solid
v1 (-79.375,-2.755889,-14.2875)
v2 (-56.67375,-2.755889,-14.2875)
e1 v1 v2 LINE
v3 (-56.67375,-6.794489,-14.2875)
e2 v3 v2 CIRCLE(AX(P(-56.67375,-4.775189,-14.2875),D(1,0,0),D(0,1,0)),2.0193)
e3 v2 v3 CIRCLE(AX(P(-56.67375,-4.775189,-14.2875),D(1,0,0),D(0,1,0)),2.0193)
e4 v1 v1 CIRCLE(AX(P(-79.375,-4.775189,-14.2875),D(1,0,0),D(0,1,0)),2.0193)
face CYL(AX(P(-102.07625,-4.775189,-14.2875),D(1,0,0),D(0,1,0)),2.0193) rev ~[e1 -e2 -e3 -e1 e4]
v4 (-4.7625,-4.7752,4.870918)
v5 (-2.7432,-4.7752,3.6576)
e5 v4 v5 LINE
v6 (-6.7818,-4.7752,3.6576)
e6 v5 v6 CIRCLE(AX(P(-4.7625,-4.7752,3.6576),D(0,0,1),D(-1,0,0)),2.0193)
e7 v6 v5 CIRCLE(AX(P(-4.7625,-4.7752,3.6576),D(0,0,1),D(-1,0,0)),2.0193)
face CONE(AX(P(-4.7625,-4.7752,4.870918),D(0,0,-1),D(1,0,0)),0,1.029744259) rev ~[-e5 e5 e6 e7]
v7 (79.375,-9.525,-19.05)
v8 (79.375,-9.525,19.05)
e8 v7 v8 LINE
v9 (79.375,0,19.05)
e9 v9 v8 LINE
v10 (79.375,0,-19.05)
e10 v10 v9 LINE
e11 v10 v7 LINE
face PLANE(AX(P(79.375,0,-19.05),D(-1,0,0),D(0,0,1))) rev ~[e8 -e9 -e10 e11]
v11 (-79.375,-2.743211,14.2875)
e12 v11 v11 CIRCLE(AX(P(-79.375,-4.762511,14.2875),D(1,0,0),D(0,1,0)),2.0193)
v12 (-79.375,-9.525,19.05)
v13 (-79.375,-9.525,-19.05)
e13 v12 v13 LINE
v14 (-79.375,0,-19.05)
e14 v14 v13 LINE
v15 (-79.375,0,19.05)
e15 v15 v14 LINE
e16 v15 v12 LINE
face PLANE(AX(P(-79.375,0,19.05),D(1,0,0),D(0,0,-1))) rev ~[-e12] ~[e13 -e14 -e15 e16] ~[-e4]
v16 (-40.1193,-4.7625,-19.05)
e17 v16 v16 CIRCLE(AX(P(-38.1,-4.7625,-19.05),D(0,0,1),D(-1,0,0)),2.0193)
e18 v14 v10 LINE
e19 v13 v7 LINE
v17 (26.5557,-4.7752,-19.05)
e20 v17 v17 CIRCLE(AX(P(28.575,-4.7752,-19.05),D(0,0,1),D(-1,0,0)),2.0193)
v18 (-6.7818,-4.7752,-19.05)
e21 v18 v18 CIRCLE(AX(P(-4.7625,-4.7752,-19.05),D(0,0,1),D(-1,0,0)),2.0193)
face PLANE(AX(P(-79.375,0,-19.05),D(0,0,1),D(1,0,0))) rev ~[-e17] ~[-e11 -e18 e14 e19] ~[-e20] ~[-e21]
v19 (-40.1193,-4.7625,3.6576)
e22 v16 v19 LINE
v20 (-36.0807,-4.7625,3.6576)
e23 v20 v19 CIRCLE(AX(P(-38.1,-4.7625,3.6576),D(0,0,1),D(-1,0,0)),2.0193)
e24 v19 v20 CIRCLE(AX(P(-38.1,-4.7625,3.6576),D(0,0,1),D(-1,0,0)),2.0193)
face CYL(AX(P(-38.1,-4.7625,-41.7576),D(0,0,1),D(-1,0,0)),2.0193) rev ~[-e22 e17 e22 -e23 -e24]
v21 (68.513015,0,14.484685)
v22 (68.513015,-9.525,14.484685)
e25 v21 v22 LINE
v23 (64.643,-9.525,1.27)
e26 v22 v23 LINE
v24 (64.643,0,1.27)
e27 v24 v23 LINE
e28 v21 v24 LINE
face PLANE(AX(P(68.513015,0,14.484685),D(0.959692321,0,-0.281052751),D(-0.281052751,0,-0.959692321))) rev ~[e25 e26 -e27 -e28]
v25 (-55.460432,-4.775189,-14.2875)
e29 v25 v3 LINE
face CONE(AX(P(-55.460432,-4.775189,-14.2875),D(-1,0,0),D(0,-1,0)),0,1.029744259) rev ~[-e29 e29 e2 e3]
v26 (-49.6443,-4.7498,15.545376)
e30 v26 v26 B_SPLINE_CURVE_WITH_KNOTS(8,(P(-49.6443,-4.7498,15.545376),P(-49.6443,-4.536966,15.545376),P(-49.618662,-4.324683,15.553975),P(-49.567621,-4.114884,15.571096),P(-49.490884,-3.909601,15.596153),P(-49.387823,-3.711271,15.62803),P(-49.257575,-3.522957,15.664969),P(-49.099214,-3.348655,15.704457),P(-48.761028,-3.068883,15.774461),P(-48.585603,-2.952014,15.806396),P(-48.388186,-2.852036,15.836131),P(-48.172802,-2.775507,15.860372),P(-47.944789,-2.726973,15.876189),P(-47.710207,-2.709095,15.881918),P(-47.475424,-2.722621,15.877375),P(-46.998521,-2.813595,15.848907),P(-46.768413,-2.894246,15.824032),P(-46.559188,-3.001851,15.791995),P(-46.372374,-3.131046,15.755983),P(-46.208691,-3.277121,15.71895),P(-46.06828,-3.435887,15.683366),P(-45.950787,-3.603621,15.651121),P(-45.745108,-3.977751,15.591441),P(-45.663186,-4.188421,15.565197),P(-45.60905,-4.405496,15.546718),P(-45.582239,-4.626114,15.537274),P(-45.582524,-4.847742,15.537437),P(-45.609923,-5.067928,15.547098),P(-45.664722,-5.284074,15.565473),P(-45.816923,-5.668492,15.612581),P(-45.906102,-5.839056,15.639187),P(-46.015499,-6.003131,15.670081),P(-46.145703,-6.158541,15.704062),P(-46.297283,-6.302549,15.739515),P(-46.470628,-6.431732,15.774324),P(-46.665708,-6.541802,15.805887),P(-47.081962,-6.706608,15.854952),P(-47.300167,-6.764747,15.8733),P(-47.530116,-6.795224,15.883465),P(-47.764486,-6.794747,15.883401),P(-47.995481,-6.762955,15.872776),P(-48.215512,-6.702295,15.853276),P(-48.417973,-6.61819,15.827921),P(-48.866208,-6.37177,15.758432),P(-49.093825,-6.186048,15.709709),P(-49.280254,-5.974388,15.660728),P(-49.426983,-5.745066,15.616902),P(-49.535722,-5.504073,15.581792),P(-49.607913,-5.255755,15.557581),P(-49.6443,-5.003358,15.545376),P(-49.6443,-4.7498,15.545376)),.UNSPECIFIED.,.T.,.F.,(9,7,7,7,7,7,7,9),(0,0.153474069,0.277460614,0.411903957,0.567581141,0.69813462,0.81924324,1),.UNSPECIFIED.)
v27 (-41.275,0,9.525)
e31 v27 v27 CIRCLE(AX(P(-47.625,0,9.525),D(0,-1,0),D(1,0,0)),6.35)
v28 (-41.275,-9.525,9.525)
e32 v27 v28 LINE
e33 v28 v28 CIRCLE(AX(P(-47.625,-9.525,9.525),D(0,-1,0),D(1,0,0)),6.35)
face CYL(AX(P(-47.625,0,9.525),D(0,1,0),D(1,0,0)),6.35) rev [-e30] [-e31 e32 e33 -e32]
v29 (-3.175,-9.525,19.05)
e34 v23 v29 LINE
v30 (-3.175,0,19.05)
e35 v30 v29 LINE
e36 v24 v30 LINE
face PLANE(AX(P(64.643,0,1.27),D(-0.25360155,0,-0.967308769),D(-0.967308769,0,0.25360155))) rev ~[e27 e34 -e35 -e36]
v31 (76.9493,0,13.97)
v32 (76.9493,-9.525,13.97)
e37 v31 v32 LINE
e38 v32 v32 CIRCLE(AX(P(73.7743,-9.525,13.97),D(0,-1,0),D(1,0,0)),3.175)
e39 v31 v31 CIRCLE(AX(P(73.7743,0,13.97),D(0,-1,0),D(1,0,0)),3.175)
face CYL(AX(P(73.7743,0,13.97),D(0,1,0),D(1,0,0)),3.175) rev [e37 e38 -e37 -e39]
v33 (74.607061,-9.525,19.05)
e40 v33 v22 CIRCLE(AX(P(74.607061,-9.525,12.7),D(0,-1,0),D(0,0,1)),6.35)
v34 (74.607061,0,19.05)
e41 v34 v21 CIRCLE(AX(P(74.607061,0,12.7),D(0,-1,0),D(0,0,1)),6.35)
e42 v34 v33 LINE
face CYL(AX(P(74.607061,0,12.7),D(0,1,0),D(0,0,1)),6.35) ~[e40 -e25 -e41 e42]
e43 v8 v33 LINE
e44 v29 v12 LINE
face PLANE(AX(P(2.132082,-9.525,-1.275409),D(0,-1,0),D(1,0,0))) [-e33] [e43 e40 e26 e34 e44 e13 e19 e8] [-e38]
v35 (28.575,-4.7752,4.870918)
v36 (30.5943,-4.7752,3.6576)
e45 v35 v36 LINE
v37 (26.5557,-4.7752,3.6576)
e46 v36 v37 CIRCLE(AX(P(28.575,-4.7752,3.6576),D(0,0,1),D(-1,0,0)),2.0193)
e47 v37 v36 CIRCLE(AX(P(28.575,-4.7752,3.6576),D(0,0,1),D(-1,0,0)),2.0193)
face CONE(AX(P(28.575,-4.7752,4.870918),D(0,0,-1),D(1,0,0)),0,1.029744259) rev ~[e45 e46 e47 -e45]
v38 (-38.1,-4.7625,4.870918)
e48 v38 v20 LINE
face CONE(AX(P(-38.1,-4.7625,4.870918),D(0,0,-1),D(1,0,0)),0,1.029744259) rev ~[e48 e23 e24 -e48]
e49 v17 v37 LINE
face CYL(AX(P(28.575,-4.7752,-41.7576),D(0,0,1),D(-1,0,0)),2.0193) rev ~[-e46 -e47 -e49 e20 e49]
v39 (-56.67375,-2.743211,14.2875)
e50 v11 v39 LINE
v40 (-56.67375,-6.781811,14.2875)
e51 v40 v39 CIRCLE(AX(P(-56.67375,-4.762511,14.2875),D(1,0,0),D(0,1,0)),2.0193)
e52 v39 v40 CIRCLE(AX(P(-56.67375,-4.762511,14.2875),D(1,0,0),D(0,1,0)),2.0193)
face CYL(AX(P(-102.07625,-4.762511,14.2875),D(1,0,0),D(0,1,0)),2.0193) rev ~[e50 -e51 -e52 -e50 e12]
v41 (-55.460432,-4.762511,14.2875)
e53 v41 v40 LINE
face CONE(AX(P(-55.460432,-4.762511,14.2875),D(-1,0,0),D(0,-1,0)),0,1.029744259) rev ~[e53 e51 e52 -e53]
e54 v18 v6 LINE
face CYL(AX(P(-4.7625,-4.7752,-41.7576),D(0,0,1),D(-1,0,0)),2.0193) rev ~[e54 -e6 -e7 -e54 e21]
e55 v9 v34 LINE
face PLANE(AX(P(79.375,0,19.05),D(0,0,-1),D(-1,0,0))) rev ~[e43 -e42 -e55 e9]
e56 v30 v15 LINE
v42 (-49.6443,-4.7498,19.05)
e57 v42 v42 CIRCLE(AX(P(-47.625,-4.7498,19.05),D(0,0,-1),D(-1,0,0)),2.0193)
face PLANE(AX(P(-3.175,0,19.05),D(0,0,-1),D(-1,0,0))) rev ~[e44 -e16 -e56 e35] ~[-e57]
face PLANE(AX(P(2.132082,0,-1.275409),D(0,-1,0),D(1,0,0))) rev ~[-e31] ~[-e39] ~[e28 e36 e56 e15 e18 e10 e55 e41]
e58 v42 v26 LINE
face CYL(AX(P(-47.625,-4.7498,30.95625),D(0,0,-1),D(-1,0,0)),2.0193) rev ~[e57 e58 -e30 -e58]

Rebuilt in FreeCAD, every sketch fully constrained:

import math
import FreeCAD as App
import Part
import Sketcher
from FreeCAD import Vector
Q = App.Units.Quantity

doc = App.newDocument("Part")
params = doc.addObject("Spreadsheet::Sheet", "Params")
for row, (alias, value) in enumerate([
    ("sketch1_diameter", "0.5 in"),
    ("sketch1_diameter2", "0.25 in"),
    ("sketch1_width", "3 in"),
    ("sketch1_height", "1.5 in"),
    ("sketch1_width2", "6.25 in"),
    ("pad1_length", "0.375 in"),
    ("sketch2_diameter", "0.159 in"),
    ("hole_diameter", "0.159 in"),
    ("hole_depth", "22.70125 mm"),
    ("sketch3_diameter", "0.159 in"),
    ("hole2_diameter", "0.159 in"),
    ("hole2_depth", "0.46875 in"),
    ("sketch4_diameter", "0.159 in"),
    ("hole3_diameter", "0.159 in"),
    ("hole3_depth", "0.894 in"),
], start=1):
    params.set(f"A{row}", alias)
    params.set(f"B{row}", "=" + value)
    params.setAlias(f"B{row}", alias)

body = doc.addObject("PartDesign::Body", "Body")

# Sketch on XZ plane
sketch1 = body.newObject("Sketcher::SketchObject", "Sketch")
sketch1.AttachmentSupport = (doc.getObject("XZ_Plane"), [""])
sketch1.MapMode = "FlatFace"
sketch1.addGeometry([
    Part.LineSegment(Vector(-3.2, 19.1, 0), Vector(-79.4, 19.1, 0)),  # 0
    Part.LineSegment(Vector(-79.4, 19.1, 0), Vector(-79.4, -19.1, 0)),  # 1
    Part.LineSegment(Vector(-79.4, -19.1, 0), Vector(79.4, -19.1, 0)),  # 2
    Part.LineSegment(Vector(79.4, -19.1, 0), Vector(79.4, 19.1, 0)),  # 3
    Part.LineSegment(Vector(79.4, 19.1, 0), Vector(74.6, 19.1, 0)),  # 4
    Part.ArcOfCircle(Part.Circle(Vector(74.6, 12.7, 0), Vector(0, 0, 1), 6.3), math.radians(90), math.radians(164)),  # 5
    Part.LineSegment(Vector(68.5, 14.5, 0), Vector(64.6, 1.3, 0)),  # 6
    Part.LineSegment(Vector(64.6, 1.3, 0), Vector(-3.2, 19.1, 0)),  # 7
    Part.Circle(Vector(-47.6, 9.5, 0), Vector(0, 0, 1), 6.3),  # 8
    Part.Circle(Vector(73.8, 14, 0), Vector(0, 0, 1), 3.2),  # 9
], False)
sketch1.addConstraint([
    Sketcher.Constraint("Coincident", 0, 2, 1, 1),
    Sketcher.Constraint("Coincident", 1, 2, 2, 1),
    Sketcher.Constraint("Coincident", 2, 2, 3, 1),
    Sketcher.Constraint("Coincident", 3, 2, 4, 1),
    Sketcher.Constraint("Tangent", 4, 2, 5, 1),
    Sketcher.Constraint("Tangent", 5, 2, 6, 1),
    Sketcher.Constraint("Coincident", 6, 2, 7, 1),
    Sketcher.Constraint("Coincident", 7, 2, 0, 1),
    Sketcher.Constraint("Horizontal", 0),
    Sketcher.Constraint("Vertical", 1),
    Sketcher.Constraint("Horizontal", 2),
    Sketcher.Constraint("Vertical", 3),
    Sketcher.Constraint("Horizontal", 4),
    Sketcher.Constraint("Equal", 5, 8),
    Sketcher.Constraint("Symmetric", 0, 2, 2, 2, -1, 1),
    Sketcher.Constraint("Horizontal", 0, 2, 3, 2),
    Sketcher.Constraint("Diameter", 8, Q("0.5 in")),
    Sketcher.Constraint("Diameter", 9, Q("0.25 in")),
    Sketcher.Constraint("DistanceX", 0, 2, 0, 1, Q("3 in")),
    Sketcher.Constraint("DistanceY", 1, 2, 1, 1, Q("1.5 in")),
    Sketcher.Constraint("DistanceX", 8, 3, 2, 2, Q("5 in")),
    Sketcher.Constraint("DistanceX", 2, 1, 2, 2, Q("6.25 in")),
    Sketcher.Constraint("DistanceY", 9, 3, 0, 2, Q("0.2 in")),
    Sketcher.Constraint("DistanceY", 6, 2, 9, 3, Q("0.5 in")),
    Sketcher.Constraint("DistanceX", 6, 2, 3, 2, Q("0.58 in")),
    Sketcher.Constraint("DistanceY", -1, 1, 8, 3, Q("0.375 in")),
    Sketcher.Constraint("DistanceX", -1, 1, 9, 3, Q("2.9045 in")),
    Sketcher.Constraint("DistanceX", 4, 2, 4, 1, 4.767939),
])
sketch1.setExpression("Constraints[16]", "Params.sketch1_diameter")
sketch1.setExpression("Constraints[17]", "Params.sketch1_diameter2")
sketch1.setExpression("Constraints[18]", "Params.sketch1_width")
sketch1.setExpression("Constraints[19]", "Params.sketch1_height")
sketch1.setExpression("Constraints[21]", "Params.sketch1_width2")
pad1 = body.newObject("PartDesign::Pad", "Pad")
pad1.Profile = sketch1
pad1.setExpression("Length", "Params.pad1_length")

# Sketch on YZ plane
sketch2 = body.newObject("Sketcher::SketchObject", "Sketch001")
sketch2.AttachmentSupport = (doc.getObject("YZ_Plane"), [""])
sketch2.MapMode = "FlatFace"
sketch2.AttachmentOffset = App.Placement(Vector(0, 0, -3.125 * 25.4), App.Rotation())
sketch2.addGeometry([
    Part.Circle(Vector(-4.8, 14.3, 0), Vector(0, 0, 1), 2),
    Part.Circle(Vector(-4.8, -14.3, 0), Vector(0, 0, 1), 2),
], False)
sketch2.addConstraint([
    Sketcher.Constraint("Equal", 0, 1),
    Sketcher.Constraint("Diameter", 0, Q("0.159 in")),
    Sketcher.Constraint("DistanceY", -1, 1, 0, 3, Q("0.5625 in")),
    Sketcher.Constraint("DistanceY", 1, 3, -1, 1, Q("0.5625 in")),
    Sketcher.Constraint("DistanceX", 0, 3, -1, 1, 4.762511),
    Sketcher.Constraint("DistanceX", 1, 3, -1, 1, 4.775189),
])
sketch2.setExpression("Constraints[1]", "Params.sketch2_diameter")
doc.recompute()
hole = body.newObject("PartDesign::Hole", "Hole")
hole.Profile = sketch2
hole.ThreadType = "None"
hole.setExpression("Diameter", "Params.hole_diameter")
hole.DepthType = "Dimension"
hole.setExpression("Depth", "Params.hole_depth")
hole.DrillPoint = "Angled"
hole.DrillPointAngle = 118
hole.Reversed = True

# Sketch on XY plane
sketch3 = body.newObject("Sketcher::SketchObject", "Sketch002")
sketch3.AttachmentSupport = (doc.getObject("XY_Plane"), [""])
sketch3.MapMode = "FlatFace"
sketch3.AttachmentOffset = App.Placement(Vector(0, 0, 0.75 * 25.4), App.Rotation())
sketch3.addGeometry(Part.Circle(Vector(-47.6, -4.7, 0), Vector(0, 0, 1), 2), False)
sketch3.addConstraint([
    Sketcher.Constraint("Diameter", 0, Q("0.159 in")),
    Sketcher.Constraint("DistanceX", 0, 3, -1, 1, Q("1.875 in")),
    Sketcher.Constraint("DistanceY", 0, 3, -1, 1, Q("0.187 in")),
])
sketch3.setExpression("Constraints[0]", "Params.sketch3_diameter")
doc.recompute()
hole2 = body.newObject("PartDesign::Hole", "Hole001")
hole2.Profile = sketch3
hole2.ThreadType = "None"
hole2.setExpression("Diameter", "Params.hole2_diameter")
hole2.DepthType = "Dimension"
hole2.setExpression("Depth", "Params.hole2_depth")
hole2.DrillPoint = "Angled"
hole2.DrillPointAngle = 118

# Sketch on XY plane
sketch4 = body.newObject("Sketcher::SketchObject", "Sketch003")
sketch4.AttachmentSupport = (doc.getObject("XY_Plane"), [""])
sketch4.MapMode = "FlatFace"
sketch4.AttachmentOffset = App.Placement(Vector(0, 0, -0.75 * 25.4), App.Rotation())
sketch4.addGeometry([
    Part.Circle(Vector(-38.1, -4.8, 0), Vector(0, 0, 1), 2),
    Part.Circle(Vector(-4.8, -4.8, 0), Vector(0, 0, 1), 2),
    Part.Circle(Vector(28.6, -4.8, 0), Vector(0, 0, 1), 2),
], False)
sketch4.addConstraint([
    Sketcher.Constraint("Equal", 0, 1),
    Sketcher.Constraint("Equal", 1, 2),
    Sketcher.Constraint("Horizontal", 1, 3, 2, 3),
    Sketcher.Constraint("Diameter", 0, Q("0.159 in")),
    Sketcher.Constraint("DistanceX", 0, 3, -1, 1, Q("1.5 in")),
    Sketcher.Constraint("DistanceY", 0, 3, -1, 1, Q("0.1875 in")),
    Sketcher.Constraint("DistanceX", 1, 3, -1, 1, Q("0.1875 in")),
    Sketcher.Constraint("DistanceY", 1, 3, -1, 1, Q("0.188 in")),
    Sketcher.Constraint("DistanceX", -1, 1, 2, 3, Q("1.125 in")),
])
sketch4.setExpression("Constraints[3]", "Params.sketch4_diameter")
doc.recompute()
hole3 = body.newObject("PartDesign::Hole", "Hole002")
hole3.Profile = sketch4
hole3.ThreadType = "None"
hole3.setExpression("Diameter", "Params.hole3_diameter")
hole3.DepthType = "Dimension"
hole3.setExpression("Depth", "Params.hole3_depth")
hole3.DrillPoint = "Angled"
hole3.DrillPointAngle = 118
hole3.Reversed = True

doc.recompute()
